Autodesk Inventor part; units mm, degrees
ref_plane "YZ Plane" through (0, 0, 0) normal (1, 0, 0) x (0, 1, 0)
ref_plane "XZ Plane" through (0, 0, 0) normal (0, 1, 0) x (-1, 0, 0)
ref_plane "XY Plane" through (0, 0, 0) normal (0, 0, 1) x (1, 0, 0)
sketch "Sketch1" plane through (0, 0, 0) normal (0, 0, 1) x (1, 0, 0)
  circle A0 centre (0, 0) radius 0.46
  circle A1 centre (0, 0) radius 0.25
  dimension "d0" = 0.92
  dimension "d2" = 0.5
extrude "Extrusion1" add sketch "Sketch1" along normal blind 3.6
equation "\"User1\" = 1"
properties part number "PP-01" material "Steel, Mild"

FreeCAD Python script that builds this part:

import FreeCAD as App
import Part
import Sketcher
Q = App.Units.Quantity

doc = App.newDocument("Part")
body = doc.addObject("PartDesign::Body", "Body")

sketch1 = body.newObject("Sketcher::SketchObject", "Sketch")
sketch1.AttachmentSupport = (doc.getObject("XY_Plane"), [""])
sketch1.MapMode = "FlatFace"
sketch1.addGeometry([
    Part.Circle(App.Vector(0, 0, 0), App.Vector(0, 0, 1), 0.46),
    Part.Circle(App.Vector(0, 0, 0), App.Vector(0, 0, 1), 0.25),
], False)
sketch1.addConstraint([
    Sketcher.Constraint("Coincident", 0, 3, -1, 1),
    Sketcher.Constraint("Coincident", 1, 3, -1, 1),
    Sketcher.Constraint("Diameter", 1, Q("0.5 mm")),
    Sketcher.Constraint("Diameter", 0, Q("0.92 mm")),
])
pad1 = body.newObject("PartDesign::Pad", "Pad")
pad1.Profile = sketch1
pad1.Length = 3.6

doc.recompute()
